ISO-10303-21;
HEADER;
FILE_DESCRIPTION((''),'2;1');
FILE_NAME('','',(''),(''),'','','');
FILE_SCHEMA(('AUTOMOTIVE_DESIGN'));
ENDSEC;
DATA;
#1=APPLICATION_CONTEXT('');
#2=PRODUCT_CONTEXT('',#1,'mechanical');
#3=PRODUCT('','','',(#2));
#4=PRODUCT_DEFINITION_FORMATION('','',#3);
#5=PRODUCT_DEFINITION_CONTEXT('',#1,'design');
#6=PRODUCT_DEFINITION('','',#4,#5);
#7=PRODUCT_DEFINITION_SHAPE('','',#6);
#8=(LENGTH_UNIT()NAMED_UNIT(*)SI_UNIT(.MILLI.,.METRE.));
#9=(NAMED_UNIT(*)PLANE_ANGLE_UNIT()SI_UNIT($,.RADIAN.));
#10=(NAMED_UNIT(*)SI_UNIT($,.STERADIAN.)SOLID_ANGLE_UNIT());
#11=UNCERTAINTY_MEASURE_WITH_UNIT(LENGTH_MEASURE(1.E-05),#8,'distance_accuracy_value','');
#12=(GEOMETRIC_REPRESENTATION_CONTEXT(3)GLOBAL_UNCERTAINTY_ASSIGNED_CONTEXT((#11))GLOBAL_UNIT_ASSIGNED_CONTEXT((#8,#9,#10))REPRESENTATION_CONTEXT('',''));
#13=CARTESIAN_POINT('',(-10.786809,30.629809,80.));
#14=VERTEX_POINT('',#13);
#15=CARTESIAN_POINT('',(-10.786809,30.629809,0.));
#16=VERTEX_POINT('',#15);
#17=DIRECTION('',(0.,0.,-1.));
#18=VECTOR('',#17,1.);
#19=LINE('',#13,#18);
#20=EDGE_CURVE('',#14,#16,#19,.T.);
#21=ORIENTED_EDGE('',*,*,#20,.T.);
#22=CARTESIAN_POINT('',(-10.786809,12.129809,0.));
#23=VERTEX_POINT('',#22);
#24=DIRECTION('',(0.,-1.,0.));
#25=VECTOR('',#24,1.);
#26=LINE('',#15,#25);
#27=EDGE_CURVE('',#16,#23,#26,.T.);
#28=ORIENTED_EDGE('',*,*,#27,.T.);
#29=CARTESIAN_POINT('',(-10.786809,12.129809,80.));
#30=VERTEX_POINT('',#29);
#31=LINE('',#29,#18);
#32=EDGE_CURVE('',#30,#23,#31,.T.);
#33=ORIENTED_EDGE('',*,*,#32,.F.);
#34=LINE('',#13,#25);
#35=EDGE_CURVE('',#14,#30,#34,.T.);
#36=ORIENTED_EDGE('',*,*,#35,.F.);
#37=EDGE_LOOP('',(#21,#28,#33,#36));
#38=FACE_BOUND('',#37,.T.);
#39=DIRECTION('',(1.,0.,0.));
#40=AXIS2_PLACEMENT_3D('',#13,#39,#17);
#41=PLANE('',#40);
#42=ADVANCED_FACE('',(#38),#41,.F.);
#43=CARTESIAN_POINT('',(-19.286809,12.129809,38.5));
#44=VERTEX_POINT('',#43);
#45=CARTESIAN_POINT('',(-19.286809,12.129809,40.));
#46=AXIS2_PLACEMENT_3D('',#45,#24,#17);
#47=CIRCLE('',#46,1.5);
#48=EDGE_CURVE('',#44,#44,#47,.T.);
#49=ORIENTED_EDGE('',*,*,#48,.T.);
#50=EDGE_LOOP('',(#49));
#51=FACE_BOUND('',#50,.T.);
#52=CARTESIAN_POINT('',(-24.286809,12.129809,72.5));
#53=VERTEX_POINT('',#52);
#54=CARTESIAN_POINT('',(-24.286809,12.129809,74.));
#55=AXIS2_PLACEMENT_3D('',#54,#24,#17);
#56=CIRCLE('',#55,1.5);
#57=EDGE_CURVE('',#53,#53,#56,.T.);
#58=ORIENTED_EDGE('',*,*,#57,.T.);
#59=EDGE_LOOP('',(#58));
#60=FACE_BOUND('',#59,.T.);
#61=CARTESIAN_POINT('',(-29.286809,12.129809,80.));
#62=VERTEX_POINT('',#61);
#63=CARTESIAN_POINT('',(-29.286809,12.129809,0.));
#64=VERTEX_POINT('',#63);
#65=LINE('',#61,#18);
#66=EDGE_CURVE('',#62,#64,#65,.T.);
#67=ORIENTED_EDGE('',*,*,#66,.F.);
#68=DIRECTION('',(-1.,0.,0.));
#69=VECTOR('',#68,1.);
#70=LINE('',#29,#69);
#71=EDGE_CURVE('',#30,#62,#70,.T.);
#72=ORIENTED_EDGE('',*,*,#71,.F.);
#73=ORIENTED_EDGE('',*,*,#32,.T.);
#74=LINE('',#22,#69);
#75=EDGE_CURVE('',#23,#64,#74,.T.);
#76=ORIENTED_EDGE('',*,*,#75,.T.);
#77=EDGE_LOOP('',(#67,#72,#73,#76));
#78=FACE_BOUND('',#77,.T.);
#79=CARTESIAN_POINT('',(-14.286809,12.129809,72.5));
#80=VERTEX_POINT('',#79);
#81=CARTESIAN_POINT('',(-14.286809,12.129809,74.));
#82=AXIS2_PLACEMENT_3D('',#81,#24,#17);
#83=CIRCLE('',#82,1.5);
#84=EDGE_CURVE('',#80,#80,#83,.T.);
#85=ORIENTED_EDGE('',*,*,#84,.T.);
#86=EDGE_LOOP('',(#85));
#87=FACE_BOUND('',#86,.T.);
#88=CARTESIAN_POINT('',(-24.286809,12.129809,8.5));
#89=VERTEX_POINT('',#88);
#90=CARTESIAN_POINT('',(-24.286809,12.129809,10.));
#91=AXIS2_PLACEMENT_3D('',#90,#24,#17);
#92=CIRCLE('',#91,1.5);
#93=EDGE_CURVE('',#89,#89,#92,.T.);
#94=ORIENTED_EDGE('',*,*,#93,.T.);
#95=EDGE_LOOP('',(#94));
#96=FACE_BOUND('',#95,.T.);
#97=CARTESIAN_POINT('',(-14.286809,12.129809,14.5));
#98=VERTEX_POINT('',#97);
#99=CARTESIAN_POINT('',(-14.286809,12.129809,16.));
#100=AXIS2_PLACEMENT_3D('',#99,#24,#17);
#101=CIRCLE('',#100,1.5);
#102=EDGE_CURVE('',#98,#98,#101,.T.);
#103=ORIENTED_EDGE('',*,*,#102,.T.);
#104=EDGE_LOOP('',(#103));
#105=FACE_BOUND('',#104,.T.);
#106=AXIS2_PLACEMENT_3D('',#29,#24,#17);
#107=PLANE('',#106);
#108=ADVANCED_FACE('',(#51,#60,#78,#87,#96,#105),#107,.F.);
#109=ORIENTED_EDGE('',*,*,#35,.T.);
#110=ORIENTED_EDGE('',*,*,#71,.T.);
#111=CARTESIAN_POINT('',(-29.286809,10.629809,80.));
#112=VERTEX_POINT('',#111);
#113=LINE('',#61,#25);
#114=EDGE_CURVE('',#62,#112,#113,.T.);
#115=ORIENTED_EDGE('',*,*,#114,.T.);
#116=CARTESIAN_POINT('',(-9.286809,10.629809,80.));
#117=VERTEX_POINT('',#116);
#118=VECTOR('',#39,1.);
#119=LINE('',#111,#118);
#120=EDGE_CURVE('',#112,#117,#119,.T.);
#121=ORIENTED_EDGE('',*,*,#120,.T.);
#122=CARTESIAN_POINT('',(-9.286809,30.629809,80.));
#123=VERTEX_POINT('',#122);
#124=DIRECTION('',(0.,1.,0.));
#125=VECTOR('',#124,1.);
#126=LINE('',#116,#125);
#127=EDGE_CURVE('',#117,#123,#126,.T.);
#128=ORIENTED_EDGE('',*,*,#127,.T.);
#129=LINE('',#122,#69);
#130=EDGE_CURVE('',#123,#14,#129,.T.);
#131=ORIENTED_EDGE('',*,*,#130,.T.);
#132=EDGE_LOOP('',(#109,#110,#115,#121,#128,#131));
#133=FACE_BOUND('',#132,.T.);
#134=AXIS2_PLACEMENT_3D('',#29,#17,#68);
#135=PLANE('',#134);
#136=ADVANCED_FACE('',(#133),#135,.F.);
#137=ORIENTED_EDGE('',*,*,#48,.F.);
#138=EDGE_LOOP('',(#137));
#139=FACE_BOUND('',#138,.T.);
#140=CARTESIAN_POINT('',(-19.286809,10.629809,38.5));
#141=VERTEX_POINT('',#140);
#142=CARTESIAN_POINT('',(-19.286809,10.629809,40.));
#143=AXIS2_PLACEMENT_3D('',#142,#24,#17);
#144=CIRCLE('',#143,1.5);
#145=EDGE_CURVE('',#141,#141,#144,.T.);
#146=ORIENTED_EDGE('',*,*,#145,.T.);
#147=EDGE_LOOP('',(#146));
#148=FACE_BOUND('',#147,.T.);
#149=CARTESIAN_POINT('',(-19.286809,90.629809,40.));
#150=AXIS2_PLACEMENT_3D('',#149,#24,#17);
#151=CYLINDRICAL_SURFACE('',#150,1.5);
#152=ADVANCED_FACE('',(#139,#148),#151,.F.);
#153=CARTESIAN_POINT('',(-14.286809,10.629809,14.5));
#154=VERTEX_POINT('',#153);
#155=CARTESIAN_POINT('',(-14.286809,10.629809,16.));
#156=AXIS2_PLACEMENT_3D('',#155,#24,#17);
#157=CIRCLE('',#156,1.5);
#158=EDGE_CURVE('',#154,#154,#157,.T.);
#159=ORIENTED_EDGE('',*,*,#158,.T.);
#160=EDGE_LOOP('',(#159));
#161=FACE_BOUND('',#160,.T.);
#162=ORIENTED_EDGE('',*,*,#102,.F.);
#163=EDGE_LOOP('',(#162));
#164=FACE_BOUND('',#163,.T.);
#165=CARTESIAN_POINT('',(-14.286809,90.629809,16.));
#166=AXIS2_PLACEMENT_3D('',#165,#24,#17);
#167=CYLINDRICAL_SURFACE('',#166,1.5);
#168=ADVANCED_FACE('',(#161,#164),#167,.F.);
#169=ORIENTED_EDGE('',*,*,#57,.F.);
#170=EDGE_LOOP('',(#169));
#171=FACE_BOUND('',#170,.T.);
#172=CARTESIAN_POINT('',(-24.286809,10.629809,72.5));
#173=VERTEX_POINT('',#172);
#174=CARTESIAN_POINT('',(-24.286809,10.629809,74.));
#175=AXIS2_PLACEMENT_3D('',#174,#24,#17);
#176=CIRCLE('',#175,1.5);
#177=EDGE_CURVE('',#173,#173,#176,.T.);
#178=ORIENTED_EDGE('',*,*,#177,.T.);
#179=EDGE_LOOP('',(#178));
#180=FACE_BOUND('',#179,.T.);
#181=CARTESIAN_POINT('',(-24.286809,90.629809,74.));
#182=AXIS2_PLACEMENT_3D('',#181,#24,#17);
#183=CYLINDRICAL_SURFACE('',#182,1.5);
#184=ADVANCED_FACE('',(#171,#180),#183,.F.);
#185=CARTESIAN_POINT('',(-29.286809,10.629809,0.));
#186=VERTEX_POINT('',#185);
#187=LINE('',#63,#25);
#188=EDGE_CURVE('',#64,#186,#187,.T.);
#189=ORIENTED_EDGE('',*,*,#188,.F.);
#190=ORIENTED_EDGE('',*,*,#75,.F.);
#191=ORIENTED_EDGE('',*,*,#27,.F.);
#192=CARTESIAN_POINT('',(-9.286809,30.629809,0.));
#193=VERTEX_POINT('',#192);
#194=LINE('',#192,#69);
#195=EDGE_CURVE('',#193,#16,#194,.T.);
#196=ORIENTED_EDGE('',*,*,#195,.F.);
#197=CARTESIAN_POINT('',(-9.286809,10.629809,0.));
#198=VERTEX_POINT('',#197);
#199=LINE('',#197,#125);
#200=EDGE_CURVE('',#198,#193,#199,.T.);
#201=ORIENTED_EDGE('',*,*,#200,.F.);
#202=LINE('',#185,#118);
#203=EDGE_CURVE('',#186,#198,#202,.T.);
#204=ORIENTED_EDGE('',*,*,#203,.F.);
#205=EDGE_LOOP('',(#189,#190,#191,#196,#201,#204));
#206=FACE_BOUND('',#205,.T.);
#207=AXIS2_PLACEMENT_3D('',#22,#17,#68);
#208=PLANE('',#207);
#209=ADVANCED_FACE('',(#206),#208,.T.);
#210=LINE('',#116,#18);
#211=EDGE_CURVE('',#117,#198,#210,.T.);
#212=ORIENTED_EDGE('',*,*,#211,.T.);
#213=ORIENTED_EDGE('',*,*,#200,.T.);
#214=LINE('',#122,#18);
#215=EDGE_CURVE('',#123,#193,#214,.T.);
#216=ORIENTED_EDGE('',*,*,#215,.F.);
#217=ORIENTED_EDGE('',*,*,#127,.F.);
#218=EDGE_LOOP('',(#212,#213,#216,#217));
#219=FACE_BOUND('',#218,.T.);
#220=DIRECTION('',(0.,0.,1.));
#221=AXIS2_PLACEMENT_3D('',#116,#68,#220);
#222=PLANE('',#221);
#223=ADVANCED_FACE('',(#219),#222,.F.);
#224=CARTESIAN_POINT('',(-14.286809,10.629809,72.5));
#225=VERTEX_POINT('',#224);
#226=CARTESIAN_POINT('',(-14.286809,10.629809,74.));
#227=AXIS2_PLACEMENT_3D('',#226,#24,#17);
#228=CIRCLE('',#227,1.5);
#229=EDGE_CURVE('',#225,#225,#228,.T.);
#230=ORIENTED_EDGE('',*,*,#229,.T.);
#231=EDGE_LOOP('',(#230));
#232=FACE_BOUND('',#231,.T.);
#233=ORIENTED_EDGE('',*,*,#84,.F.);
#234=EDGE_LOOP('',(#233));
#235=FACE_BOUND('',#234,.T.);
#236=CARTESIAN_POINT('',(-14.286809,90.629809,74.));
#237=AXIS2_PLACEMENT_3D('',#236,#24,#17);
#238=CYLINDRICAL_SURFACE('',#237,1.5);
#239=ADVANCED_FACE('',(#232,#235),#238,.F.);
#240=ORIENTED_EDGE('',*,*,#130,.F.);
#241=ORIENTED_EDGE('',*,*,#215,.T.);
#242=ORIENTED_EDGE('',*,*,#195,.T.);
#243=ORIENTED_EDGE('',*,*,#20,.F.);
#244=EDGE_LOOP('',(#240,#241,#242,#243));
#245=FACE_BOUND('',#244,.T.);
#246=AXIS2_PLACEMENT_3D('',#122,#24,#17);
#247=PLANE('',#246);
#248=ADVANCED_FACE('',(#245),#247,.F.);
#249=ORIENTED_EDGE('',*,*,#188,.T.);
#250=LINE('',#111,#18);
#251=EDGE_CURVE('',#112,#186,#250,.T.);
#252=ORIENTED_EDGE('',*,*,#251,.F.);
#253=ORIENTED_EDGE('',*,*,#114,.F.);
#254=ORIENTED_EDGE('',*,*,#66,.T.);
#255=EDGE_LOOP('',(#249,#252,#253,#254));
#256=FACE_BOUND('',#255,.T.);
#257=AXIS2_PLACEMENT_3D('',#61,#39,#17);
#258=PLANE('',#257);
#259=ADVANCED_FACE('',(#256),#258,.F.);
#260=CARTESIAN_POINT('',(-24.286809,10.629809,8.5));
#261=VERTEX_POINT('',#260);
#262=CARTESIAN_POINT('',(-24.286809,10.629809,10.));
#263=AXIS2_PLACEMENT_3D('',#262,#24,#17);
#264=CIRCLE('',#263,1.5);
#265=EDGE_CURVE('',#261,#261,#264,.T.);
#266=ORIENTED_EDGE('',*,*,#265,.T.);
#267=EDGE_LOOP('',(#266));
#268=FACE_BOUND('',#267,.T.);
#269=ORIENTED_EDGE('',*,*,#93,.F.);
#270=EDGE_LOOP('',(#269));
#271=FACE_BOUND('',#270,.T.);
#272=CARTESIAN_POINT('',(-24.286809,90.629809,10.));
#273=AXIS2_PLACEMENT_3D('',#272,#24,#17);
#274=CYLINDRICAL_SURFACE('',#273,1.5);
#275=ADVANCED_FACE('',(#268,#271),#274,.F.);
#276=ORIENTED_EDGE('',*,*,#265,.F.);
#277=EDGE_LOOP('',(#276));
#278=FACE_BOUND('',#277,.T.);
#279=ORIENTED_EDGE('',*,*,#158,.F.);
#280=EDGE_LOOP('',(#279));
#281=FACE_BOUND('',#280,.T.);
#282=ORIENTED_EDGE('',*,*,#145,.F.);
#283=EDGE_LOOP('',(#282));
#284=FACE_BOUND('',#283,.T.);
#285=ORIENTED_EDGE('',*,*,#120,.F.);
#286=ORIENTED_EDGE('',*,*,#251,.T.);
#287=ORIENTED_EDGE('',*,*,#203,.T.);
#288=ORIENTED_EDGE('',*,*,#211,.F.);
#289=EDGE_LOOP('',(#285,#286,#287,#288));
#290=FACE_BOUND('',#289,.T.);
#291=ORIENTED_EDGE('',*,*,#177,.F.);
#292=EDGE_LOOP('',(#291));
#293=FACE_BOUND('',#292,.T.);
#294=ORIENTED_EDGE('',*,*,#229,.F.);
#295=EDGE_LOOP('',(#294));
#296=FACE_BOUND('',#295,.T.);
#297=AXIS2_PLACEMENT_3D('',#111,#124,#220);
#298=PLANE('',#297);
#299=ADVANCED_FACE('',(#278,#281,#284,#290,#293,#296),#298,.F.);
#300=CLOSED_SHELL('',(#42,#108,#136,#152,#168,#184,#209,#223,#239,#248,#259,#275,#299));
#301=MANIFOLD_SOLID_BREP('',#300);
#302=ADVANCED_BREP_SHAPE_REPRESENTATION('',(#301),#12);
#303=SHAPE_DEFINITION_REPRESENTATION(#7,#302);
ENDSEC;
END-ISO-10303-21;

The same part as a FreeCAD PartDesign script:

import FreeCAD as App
import Part
import Sketcher
Q = App.Units.Quantity


def add_polygon(sketch, points):
    """Adds a closed chain of lines whose ends are joined by coincident constraints."""
    first, n = sketch.GeometryCount, len(points)
    for a, b in zip(points, points[1:] + points[:1]):
        sketch.addGeometry(Part.LineSegment(App.Vector(*a, 0), App.Vector(*b, 0)), False)
    for i in range(n):
        sketch.addConstraint(Sketcher.Constraint("Coincident", first + i, 2, first + (i + 1) % n, 1))

doc = App.newDocument("Part")
params = doc.addObject("Spreadsheet::Sheet", "Params")
for row, (alias, value) in enumerate([
    ("sketch1_width", "20 mm"),
    ("sketch1_width2", "1.5 mm"),
    ("pad1_length", "80 mm"),
    ("sketch2_diameter", "3 mm"),
    ("pocket1_length", "80 mm"),
], start=1):
    params.set(f"A{row}", alias)
    params.set(f"B{row}", "=" + value)
    params.setAlias(f"B{row}", alias)

body = doc.addObject("PartDesign::Body", "Body")

# Sketch on XY plane
sketch1 = body.newObject("Sketcher::SketchObject", "Sketch")
sketch1.AttachmentSupport = (doc.getObject("XY_Plane"), [""])
sketch1.MapMode = "FlatFace"
add_polygon(sketch1, [(-29.3, 12.1), (-29.3, 10.6), (-9.3, 10.6), (-9.3, 30.6), (-10.8, 30.6), (-10.8, 12.1)])  # lines 0-5
sketch1.addConstraint([
    Sketcher.Constraint("Vertical", 0),
    Sketcher.Constraint("Horizontal", 1),
    Sketcher.Constraint("Vertical", 2),
    Sketcher.Constraint("Horizontal", 3),
    Sketcher.Constraint("Vertical", 4),
    Sketcher.Constraint("Horizontal", 5),
    Sketcher.Constraint("Equal", 3, 0),
    Sketcher.Constraint("Equal", 1, 2),
    Sketcher.Constraint("DistanceX", 1, 1, 1, 2, Q("20 mm")),
    Sketcher.Constraint("DistanceX", 3, 2, 3, 1, Q("1.5 mm")),
    Sketcher.Constraint("DistanceX", 0, 2, -1, 1, Q("29.286809 mm")),
    Sketcher.Constraint("DistanceY", -1, 1, 0, 2, Q("10.629809 mm")),
])
sketch1.setExpression("Constraints[14]", "Params.sketch1_width")
sketch1.setExpression("Constraints[15]", "Params.sketch1_width2")
pad1 = body.newObject("PartDesign::Pad", "Pad")
pad1.Profile = sketch1
pad1.setExpression("Length", "Params.pad1_length")

# Sketch on XZ plane
sketch2 = body.newObject("Sketcher::SketchObject", "Sketch001")
sketch2.AttachmentSupport = (doc.getObject("XZ_Plane"), [""])
sketch2.MapMode = "FlatFace"
sketch2.AttachmentOffset = App.Placement(App.Vector(0, 0, -10.629809), App.Rotation())
sketch2.addGeometry([
    Part.Circle(App.Vector(-14.3, 74, 0), App.Vector(0, 0, 1), 1.5),  # 0
    Part.Circle(App.Vector(-24.3, 74, 0), App.Vector(0, 0, 1), 1.5),  # 1
    Part.Circle(App.Vector(-14.3, 16, 0), App.Vector(0, 0, 1), 1.5),  # 2
    Part.Circle(App.Vector(-24.3, 10, 0), App.Vector(0, 0, 1), 1.5),  # 3
    Part.Circle(App.Vector(-19.3, 40, 0), App.Vector(0, 0, 1), 1.5),  # 4
], False)
sketch2.addConstraint([
    Sketcher.Constraint("Equal", 0, 1),
    Sketcher.Constraint("Equal", 1, 2),
    Sketcher.Constraint("Equal", 2, 3),
    Sketcher.Constraint("Equal", 3, 4),
    Sketcher.Constraint("Horizontal", 0, 3, 1, 3),
    Sketcher.Constraint("Vertical", 0, 3, 2, 3),
    Sketcher.Constraint("Vertical", 1, 3, 3, 3),
    Sketcher.Constraint("Diameter", 0, Q("3 mm")),
    Sketcher.Constraint("DistanceY", -1, 1, 0, 3, Q("74 mm")),
    Sketcher.Constraint("DistanceY", -1, 1, 2, 3, Q("16 mm")),
    Sketcher.Constraint("DistanceY", -1, 1, 3, 3, Q("10 mm")),
    Sketcher.Constraint("DistanceY", -1, 1, 4, 3, Q("40 mm")),
    Sketcher.Constraint("DistanceX", 1, 3, 0, 3, Q("10 mm")),
    Sketcher.Constraint("DistanceX", 4, 3, 2, 3, Q("5 mm")),
    Sketcher.Constraint("DistanceX", 0, 3, -1, 1, Q("14.286809 mm")),
])
sketch2.setExpression("Constraints[7]", "Params.sketch2_diameter")
pocket1 = body.newObject("PartDesign::Pocket", "Pocket")
pocket1.Profile = sketch2
pocket1.setExpression("Length", "Params.pocket1_length")

doc.recompute()
